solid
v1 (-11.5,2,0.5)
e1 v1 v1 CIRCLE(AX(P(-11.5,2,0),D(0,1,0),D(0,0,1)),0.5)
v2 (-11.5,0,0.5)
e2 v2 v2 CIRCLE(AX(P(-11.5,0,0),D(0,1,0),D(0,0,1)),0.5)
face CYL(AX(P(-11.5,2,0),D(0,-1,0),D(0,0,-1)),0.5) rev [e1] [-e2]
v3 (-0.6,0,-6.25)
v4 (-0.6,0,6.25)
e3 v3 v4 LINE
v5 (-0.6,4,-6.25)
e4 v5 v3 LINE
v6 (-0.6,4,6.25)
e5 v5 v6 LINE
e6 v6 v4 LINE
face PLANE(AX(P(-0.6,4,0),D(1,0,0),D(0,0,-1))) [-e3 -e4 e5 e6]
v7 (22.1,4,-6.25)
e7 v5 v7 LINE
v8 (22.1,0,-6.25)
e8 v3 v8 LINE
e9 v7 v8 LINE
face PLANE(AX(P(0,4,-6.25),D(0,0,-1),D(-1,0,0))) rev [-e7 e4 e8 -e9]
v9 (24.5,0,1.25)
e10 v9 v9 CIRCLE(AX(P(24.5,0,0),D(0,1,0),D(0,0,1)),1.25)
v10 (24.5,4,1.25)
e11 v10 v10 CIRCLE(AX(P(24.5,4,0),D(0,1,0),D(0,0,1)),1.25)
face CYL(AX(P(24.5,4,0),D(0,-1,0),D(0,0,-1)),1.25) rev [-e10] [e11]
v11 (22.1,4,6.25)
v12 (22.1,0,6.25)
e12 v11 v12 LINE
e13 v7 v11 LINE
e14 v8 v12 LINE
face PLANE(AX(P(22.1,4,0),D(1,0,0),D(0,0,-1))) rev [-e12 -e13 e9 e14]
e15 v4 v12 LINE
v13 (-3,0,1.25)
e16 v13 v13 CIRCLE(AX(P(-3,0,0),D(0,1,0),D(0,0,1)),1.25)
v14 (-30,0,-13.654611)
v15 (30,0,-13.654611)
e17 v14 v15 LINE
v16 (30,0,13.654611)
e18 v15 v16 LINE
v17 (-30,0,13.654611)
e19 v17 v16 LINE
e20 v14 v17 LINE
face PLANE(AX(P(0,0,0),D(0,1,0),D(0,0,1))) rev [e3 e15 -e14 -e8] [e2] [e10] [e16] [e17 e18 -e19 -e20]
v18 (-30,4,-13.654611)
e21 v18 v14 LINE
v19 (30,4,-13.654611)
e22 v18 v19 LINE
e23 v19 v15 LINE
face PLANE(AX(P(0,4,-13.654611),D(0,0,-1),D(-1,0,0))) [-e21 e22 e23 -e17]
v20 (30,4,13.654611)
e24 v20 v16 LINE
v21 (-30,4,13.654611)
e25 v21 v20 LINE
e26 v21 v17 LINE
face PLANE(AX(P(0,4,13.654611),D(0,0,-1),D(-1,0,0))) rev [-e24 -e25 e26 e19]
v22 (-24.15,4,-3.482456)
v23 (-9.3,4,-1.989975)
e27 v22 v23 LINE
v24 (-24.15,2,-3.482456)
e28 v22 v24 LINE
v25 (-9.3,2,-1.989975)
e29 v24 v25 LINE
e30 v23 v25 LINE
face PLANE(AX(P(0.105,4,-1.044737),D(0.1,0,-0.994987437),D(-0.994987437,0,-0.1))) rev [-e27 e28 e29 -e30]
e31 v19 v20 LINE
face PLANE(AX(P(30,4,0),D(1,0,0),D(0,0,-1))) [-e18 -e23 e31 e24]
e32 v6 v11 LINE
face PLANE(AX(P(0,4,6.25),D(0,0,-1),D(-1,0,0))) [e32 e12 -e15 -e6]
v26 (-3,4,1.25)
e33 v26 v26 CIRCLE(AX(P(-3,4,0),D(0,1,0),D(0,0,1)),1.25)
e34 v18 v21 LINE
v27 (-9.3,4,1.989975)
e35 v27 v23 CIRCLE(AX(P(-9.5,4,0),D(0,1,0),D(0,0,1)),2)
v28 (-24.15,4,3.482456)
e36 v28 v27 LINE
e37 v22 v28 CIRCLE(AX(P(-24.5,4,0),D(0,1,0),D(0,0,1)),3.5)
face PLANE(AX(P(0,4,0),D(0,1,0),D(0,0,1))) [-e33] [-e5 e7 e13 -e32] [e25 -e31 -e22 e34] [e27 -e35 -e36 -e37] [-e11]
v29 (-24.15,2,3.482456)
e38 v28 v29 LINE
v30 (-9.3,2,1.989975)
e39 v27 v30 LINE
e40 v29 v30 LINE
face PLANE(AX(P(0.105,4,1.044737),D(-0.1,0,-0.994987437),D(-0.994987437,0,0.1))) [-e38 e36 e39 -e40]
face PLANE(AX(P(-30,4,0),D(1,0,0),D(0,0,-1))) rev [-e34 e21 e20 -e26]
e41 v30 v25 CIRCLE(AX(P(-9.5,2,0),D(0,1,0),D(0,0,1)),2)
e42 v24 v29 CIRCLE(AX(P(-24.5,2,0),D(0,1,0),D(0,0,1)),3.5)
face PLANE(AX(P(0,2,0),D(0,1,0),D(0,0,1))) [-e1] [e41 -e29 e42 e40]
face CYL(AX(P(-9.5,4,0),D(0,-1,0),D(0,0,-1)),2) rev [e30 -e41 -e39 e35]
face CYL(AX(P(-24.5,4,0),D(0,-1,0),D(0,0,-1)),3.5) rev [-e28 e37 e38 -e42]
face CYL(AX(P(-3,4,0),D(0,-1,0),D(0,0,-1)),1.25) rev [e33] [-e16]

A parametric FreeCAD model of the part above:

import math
import FreeCAD as App
import Part
import Sketcher

doc = App.newDocument("Part")
params = doc.addObject("Spreadsheet::Sheet", "Params")
for row, (alias, value) in enumerate([
    ("sketch1_radius", "2 mm"),
    ("sketch1_diameter", "2.5 mm"),
    ("sketch1_radius2", "3.5 mm"),
    ("sketch1_width", "60 mm"),
    ("sketch1_width2", "22.7 mm"),
    ("pad1_length", "4 mm"),
    ("sketch2_diameter", "1 mm"),
    ("sketch2_radius", "2 mm"),
    ("sketch2_radius2", "3.5 mm"),
    ("pad2_length", "2 mm"),
], start=1):
    params.set(f"A{row}", alias)
    params.set(f"B{row}", "=" + value)
    params.setAlias(f"B{row}", alias)

body = doc.addObject("PartDesign::Body", "Body")

sketch1 = body.newObject("Sketcher::SketchObject", "Sketch")
sketch1.AttachmentSupport = (doc.getObject("XZ_Plane"), [""])
sketch1.MapMode = "FlatFace"
sketch1.addGeometry([
    Part.LineSegment(App.Vector(-30, -13.654611, 0), App.Vector(-30, 13.654611, 0)),
    Part.LineSegment(App.Vector(-30, 13.654611, 0), App.Vector(30, 13.654611, 0)),
    Part.LineSegment(App.Vector(30, 13.654611, 0), App.Vector(30, -13.654611, 0)),
    Part.LineSegment(App.Vector(30, -13.654611, 0), App.Vector(-30, -13.654611, 0)),
    Part.LineSegment(App.Vector(-9.3, 1.989975, 0), App.Vector(-24.15, 3.482456, 0)),
    Part.ArcOfCircle(Part.Circle(App.Vector(-24.5, 0, 0), App.Vector(0, 0, 1), 3.5), math.radians(84.26083), math.radians(275.73917)),
    Part.LineSegment(App.Vector(-24.15, -3.482456, 0), App.Vector(-9.3, -1.989975, 0)),
    Part.ArcOfCircle(Part.Circle(App.Vector(-9.5, 0, 0), App.Vector(0, 0, 1), 2), math.radians(-84.260829), math.radians(0)),
    Part.ArcOfCircle(Part.Circle(App.Vector(-9.5, 0, 0), App.Vector(0, 0, 1), 2), math.radians(0), math.radians(84.260829)),
    Part.Circle(App.Vector(-3, 0, 0), App.Vector(0, 0, 1), 1.25),
    Part.LineSegment(App.Vector(22.1, 6.25, 0), App.Vector(-0.6, 6.25, 0)),
    Part.LineSegment(App.Vector(-0.6, 6.25, 0), App.Vector(-0.6, -6.25, 0)),
    Part.LineSegment(App.Vector(-0.6, -6.25, 0), App.Vector(22.1, -6.25, 0)),
    Part.LineSegment(App.Vector(22.1, -6.25, 0), App.Vector(22.1, 6.25, 0)),
    Part.Circle(App.Vector(24.5, 0, 0), App.Vector(0, 0, 1), 1.25),
], False)
sketch1.addConstraint([
    Sketcher.Constraint("Coincident", 0, 2, 1, 1),
    Sketcher.Constraint("Coincident", 1, 2, 2, 1),
    Sketcher.Constraint("Coincident", 2, 2, 3, 1),
    Sketcher.Constraint("Coincident", 3, 2, 0, 1),
    Sketcher.Constraint("Tangent", 4, 2, 5, 1),
    Sketcher.Constraint("Tangent", 5, 2, 6, 1),
    Sketcher.Constraint("Tangent", 6, 2, 7, 1),
    Sketcher.Constraint("Tangent", 7, 2, 8, 1),
    Sketcher.Constraint("Tangent", 8, 2, 4, 1),
    Sketcher.Constraint("Coincident", 10, 2, 11, 1),
    Sketcher.Constraint("Coincident", 11, 2, 12, 1),
    Sketcher.Constraint("Coincident", 12, 2, 13, 1),
    Sketcher.Constraint("Coincident", 13, 2, 10, 1),
    Sketcher.Constraint("Vertical", 0),
    Sketcher.Constraint("Horizontal", 1),
    Sketcher.Constraint("Vertical", 2),
    Sketcher.Constraint("Horizontal", 3),
    Sketcher.Constraint("Horizontal", 10),
    Sketcher.Constraint("Vertical", 11),
    Sketcher.Constraint("Horizontal", 12),
    Sketcher.Constraint("Vertical", 13),
    Sketcher.Constraint("Equal", 7, 8),
    Sketcher.Constraint("Equal", 9, 14),
    Sketcher.Constraint("Symmetric", 5, 3, 14, 3, -1, 1),
    Sketcher.Constraint("Symmetric", 0, 2, 2, 2, -1, 1),
    Sketcher.Constraint("Symmetric", 4, 2, 5, 2, -1),
    Sketcher.Constraint("PointOnObject", 9, 3, -1),
    Sketcher.Constraint("PointOnObject", 7, 2, -1),
    Sketcher.Constraint("Radius", 7, 2.0),
    Sketcher.Constraint("Diameter", 9, 2.5),
    Sketcher.Constraint("Radius", 5, 3.5),
    Sketcher.Constraint("DistanceX", 1, 1, 1, 2, 60.0),
    Sketcher.Constraint("DistanceX", 10, 2, 10, 1, 22.7),
    Sketcher.Constraint("DistanceY", 11, 2, 11, 1, 12.5),
    Sketcher.Constraint("DistanceX", 9, 3, -1, 1, 3.0),
    Sketcher.Constraint("DistanceX", 5, 3, 7, 3, 15.0),
    Sketcher.Constraint("DistanceX", 7, 3, 14, 3, 34.0),
    Sketcher.Constraint("DistanceX", 10, 2, -1, 1, 0.6),
    Sketcher.Constraint("DistanceY", -1, 1, 10, 2, 6.25),
    Sketcher.Constraint("DistanceY", 0, 1, 0, 2, 27.309223),
])
sketch1.setExpression("Constraints[28]", "Params.sketch1_radius")
sketch1.setExpression("Constraints[29]", "Params.sketch1_diameter")
sketch1.setExpression("Constraints[30]", "Params.sketch1_radius2")
sketch1.setExpression("Constraints[31]", "Params.sketch1_width")
sketch1.setExpression("Constraints[32]", "Params.sketch1_width2")
pad1 = body.newObject("PartDesign::Pad", "Pad")
pad1.Profile = sketch1
pad1.setExpression("Length", "Params.pad1_length")
pad1.Reversed = True

sketch2 = body.newObject("Sketcher::SketchObject", "Sketch001")
sketch2.AttachmentSupport = (doc.getObject("XZ_Plane"), [""])
sketch2.MapMode = "FlatFace"
sketch2.addGeometry([
    Part.LineSegment(App.Vector(-9.3, -1.989975, 0), App.Vector(-24.15, -3.482456, 0)),
    Part.ArcOfCircle(Part.Circle(App.Vector(-24.5, 0, 0), App.Vector(0, 0, 1), 3.5), math.radians(84.26083), math.radians(275.73917)),
    Part.LineSegment(App.Vector(-24.15, 3.482456, 0), App.Vector(-9.3, 1.989975, 0)),
    Part.ArcOfCircle(Part.Circle(App.Vector(-9.5, 0, 0), App.Vector(0, 0, 1), 2), math.radians(-84.26083), math.radians(84.26083)),
    Part.Circle(App.Vector(-11.5, 0, 0), App.Vector(0, 0, 1), 0.5),
], False)
sketch2.addConstraint([
    Sketcher.Constraint("Tangent", 0, 2, 1, 2),
    Sketcher.Constraint("Tangent", 1, 1, 2, 1),
    Sketcher.Constraint("Tangent", 2, 2, 3, 2),
    Sketcher.Constraint("Tangent", 3, 1, 0, 1),
    Sketcher.Constraint("Symmetric", 0, 2, 1, 1, -1),
    Sketcher.Constraint("PointOnObject", 4, 3, -1),
    Sketcher.Constraint("Diameter", 4, 1.0),
    Sketcher.Constraint("Radius", 3, 2.0),
    Sketcher.Constraint("Radius", 1, 3.5),
    Sketcher.Constraint("DistanceX", 1, 3, 3, 3, 15.0),
    Sketcher.Constraint("DistanceX", 4, 3, 3, 3, 2.0),
    Sketcher.Constraint("DistanceX", 1, 3, -1, 1, 24.5),
])
sketch2.setExpression("Constraints[6]", "Params.sketch2_diameter")
sketch2.setExpression("Constraints[7]", "Params.sketch2_radius")
sketch2.setExpression("Constraints[8]", "Params.sketch2_radius2")
pad2 = body.newObject("PartDesign::Pad", "Pad001")
pad2.Profile = sketch2
pad2.setExpression("Length", "Params.pad2_length")
pad2.Reversed = True

doc.recompute()
